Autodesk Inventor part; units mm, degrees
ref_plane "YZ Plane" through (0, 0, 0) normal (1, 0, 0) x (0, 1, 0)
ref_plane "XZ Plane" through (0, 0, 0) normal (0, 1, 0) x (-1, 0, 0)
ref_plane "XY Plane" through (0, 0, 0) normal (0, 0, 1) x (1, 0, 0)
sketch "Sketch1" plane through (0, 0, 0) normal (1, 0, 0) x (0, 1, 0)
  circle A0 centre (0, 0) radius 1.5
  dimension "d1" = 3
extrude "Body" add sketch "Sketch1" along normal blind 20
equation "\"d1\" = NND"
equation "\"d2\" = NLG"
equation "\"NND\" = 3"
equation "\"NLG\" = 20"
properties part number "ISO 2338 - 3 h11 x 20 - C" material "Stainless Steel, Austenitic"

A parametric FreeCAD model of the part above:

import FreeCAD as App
import Part
import Sketcher

V = App.Vector
Q = App.Units.Quantity

doc = App.newDocument("Part")
body = doc.addObject("PartDesign::Body", "Body")

# Sketch on YZ plane
sketch1 = body.newObject("Sketcher::SketchObject", "Sketch")
sketch1.AttachmentSupport = (doc.getObject("YZ_Plane"), [""])
sketch1.MapMode = "FlatFace"
sketch1.addGeometry(Part.Circle(V(0, 0, 0), V(0, 0, 1), 1.5), False)
sketch1.addConstraint(Sketcher.Constraint("Coincident", 0, 3, -1, 1))
sketch1.addConstraint(Sketcher.Constraint("Diameter", 0, Q("3 mm")))
pad1 = body.newObject("PartDesign::Pad", "Pad")
pad1.Profile = sketch1
pad1.Length = 20

doc.recompute()
